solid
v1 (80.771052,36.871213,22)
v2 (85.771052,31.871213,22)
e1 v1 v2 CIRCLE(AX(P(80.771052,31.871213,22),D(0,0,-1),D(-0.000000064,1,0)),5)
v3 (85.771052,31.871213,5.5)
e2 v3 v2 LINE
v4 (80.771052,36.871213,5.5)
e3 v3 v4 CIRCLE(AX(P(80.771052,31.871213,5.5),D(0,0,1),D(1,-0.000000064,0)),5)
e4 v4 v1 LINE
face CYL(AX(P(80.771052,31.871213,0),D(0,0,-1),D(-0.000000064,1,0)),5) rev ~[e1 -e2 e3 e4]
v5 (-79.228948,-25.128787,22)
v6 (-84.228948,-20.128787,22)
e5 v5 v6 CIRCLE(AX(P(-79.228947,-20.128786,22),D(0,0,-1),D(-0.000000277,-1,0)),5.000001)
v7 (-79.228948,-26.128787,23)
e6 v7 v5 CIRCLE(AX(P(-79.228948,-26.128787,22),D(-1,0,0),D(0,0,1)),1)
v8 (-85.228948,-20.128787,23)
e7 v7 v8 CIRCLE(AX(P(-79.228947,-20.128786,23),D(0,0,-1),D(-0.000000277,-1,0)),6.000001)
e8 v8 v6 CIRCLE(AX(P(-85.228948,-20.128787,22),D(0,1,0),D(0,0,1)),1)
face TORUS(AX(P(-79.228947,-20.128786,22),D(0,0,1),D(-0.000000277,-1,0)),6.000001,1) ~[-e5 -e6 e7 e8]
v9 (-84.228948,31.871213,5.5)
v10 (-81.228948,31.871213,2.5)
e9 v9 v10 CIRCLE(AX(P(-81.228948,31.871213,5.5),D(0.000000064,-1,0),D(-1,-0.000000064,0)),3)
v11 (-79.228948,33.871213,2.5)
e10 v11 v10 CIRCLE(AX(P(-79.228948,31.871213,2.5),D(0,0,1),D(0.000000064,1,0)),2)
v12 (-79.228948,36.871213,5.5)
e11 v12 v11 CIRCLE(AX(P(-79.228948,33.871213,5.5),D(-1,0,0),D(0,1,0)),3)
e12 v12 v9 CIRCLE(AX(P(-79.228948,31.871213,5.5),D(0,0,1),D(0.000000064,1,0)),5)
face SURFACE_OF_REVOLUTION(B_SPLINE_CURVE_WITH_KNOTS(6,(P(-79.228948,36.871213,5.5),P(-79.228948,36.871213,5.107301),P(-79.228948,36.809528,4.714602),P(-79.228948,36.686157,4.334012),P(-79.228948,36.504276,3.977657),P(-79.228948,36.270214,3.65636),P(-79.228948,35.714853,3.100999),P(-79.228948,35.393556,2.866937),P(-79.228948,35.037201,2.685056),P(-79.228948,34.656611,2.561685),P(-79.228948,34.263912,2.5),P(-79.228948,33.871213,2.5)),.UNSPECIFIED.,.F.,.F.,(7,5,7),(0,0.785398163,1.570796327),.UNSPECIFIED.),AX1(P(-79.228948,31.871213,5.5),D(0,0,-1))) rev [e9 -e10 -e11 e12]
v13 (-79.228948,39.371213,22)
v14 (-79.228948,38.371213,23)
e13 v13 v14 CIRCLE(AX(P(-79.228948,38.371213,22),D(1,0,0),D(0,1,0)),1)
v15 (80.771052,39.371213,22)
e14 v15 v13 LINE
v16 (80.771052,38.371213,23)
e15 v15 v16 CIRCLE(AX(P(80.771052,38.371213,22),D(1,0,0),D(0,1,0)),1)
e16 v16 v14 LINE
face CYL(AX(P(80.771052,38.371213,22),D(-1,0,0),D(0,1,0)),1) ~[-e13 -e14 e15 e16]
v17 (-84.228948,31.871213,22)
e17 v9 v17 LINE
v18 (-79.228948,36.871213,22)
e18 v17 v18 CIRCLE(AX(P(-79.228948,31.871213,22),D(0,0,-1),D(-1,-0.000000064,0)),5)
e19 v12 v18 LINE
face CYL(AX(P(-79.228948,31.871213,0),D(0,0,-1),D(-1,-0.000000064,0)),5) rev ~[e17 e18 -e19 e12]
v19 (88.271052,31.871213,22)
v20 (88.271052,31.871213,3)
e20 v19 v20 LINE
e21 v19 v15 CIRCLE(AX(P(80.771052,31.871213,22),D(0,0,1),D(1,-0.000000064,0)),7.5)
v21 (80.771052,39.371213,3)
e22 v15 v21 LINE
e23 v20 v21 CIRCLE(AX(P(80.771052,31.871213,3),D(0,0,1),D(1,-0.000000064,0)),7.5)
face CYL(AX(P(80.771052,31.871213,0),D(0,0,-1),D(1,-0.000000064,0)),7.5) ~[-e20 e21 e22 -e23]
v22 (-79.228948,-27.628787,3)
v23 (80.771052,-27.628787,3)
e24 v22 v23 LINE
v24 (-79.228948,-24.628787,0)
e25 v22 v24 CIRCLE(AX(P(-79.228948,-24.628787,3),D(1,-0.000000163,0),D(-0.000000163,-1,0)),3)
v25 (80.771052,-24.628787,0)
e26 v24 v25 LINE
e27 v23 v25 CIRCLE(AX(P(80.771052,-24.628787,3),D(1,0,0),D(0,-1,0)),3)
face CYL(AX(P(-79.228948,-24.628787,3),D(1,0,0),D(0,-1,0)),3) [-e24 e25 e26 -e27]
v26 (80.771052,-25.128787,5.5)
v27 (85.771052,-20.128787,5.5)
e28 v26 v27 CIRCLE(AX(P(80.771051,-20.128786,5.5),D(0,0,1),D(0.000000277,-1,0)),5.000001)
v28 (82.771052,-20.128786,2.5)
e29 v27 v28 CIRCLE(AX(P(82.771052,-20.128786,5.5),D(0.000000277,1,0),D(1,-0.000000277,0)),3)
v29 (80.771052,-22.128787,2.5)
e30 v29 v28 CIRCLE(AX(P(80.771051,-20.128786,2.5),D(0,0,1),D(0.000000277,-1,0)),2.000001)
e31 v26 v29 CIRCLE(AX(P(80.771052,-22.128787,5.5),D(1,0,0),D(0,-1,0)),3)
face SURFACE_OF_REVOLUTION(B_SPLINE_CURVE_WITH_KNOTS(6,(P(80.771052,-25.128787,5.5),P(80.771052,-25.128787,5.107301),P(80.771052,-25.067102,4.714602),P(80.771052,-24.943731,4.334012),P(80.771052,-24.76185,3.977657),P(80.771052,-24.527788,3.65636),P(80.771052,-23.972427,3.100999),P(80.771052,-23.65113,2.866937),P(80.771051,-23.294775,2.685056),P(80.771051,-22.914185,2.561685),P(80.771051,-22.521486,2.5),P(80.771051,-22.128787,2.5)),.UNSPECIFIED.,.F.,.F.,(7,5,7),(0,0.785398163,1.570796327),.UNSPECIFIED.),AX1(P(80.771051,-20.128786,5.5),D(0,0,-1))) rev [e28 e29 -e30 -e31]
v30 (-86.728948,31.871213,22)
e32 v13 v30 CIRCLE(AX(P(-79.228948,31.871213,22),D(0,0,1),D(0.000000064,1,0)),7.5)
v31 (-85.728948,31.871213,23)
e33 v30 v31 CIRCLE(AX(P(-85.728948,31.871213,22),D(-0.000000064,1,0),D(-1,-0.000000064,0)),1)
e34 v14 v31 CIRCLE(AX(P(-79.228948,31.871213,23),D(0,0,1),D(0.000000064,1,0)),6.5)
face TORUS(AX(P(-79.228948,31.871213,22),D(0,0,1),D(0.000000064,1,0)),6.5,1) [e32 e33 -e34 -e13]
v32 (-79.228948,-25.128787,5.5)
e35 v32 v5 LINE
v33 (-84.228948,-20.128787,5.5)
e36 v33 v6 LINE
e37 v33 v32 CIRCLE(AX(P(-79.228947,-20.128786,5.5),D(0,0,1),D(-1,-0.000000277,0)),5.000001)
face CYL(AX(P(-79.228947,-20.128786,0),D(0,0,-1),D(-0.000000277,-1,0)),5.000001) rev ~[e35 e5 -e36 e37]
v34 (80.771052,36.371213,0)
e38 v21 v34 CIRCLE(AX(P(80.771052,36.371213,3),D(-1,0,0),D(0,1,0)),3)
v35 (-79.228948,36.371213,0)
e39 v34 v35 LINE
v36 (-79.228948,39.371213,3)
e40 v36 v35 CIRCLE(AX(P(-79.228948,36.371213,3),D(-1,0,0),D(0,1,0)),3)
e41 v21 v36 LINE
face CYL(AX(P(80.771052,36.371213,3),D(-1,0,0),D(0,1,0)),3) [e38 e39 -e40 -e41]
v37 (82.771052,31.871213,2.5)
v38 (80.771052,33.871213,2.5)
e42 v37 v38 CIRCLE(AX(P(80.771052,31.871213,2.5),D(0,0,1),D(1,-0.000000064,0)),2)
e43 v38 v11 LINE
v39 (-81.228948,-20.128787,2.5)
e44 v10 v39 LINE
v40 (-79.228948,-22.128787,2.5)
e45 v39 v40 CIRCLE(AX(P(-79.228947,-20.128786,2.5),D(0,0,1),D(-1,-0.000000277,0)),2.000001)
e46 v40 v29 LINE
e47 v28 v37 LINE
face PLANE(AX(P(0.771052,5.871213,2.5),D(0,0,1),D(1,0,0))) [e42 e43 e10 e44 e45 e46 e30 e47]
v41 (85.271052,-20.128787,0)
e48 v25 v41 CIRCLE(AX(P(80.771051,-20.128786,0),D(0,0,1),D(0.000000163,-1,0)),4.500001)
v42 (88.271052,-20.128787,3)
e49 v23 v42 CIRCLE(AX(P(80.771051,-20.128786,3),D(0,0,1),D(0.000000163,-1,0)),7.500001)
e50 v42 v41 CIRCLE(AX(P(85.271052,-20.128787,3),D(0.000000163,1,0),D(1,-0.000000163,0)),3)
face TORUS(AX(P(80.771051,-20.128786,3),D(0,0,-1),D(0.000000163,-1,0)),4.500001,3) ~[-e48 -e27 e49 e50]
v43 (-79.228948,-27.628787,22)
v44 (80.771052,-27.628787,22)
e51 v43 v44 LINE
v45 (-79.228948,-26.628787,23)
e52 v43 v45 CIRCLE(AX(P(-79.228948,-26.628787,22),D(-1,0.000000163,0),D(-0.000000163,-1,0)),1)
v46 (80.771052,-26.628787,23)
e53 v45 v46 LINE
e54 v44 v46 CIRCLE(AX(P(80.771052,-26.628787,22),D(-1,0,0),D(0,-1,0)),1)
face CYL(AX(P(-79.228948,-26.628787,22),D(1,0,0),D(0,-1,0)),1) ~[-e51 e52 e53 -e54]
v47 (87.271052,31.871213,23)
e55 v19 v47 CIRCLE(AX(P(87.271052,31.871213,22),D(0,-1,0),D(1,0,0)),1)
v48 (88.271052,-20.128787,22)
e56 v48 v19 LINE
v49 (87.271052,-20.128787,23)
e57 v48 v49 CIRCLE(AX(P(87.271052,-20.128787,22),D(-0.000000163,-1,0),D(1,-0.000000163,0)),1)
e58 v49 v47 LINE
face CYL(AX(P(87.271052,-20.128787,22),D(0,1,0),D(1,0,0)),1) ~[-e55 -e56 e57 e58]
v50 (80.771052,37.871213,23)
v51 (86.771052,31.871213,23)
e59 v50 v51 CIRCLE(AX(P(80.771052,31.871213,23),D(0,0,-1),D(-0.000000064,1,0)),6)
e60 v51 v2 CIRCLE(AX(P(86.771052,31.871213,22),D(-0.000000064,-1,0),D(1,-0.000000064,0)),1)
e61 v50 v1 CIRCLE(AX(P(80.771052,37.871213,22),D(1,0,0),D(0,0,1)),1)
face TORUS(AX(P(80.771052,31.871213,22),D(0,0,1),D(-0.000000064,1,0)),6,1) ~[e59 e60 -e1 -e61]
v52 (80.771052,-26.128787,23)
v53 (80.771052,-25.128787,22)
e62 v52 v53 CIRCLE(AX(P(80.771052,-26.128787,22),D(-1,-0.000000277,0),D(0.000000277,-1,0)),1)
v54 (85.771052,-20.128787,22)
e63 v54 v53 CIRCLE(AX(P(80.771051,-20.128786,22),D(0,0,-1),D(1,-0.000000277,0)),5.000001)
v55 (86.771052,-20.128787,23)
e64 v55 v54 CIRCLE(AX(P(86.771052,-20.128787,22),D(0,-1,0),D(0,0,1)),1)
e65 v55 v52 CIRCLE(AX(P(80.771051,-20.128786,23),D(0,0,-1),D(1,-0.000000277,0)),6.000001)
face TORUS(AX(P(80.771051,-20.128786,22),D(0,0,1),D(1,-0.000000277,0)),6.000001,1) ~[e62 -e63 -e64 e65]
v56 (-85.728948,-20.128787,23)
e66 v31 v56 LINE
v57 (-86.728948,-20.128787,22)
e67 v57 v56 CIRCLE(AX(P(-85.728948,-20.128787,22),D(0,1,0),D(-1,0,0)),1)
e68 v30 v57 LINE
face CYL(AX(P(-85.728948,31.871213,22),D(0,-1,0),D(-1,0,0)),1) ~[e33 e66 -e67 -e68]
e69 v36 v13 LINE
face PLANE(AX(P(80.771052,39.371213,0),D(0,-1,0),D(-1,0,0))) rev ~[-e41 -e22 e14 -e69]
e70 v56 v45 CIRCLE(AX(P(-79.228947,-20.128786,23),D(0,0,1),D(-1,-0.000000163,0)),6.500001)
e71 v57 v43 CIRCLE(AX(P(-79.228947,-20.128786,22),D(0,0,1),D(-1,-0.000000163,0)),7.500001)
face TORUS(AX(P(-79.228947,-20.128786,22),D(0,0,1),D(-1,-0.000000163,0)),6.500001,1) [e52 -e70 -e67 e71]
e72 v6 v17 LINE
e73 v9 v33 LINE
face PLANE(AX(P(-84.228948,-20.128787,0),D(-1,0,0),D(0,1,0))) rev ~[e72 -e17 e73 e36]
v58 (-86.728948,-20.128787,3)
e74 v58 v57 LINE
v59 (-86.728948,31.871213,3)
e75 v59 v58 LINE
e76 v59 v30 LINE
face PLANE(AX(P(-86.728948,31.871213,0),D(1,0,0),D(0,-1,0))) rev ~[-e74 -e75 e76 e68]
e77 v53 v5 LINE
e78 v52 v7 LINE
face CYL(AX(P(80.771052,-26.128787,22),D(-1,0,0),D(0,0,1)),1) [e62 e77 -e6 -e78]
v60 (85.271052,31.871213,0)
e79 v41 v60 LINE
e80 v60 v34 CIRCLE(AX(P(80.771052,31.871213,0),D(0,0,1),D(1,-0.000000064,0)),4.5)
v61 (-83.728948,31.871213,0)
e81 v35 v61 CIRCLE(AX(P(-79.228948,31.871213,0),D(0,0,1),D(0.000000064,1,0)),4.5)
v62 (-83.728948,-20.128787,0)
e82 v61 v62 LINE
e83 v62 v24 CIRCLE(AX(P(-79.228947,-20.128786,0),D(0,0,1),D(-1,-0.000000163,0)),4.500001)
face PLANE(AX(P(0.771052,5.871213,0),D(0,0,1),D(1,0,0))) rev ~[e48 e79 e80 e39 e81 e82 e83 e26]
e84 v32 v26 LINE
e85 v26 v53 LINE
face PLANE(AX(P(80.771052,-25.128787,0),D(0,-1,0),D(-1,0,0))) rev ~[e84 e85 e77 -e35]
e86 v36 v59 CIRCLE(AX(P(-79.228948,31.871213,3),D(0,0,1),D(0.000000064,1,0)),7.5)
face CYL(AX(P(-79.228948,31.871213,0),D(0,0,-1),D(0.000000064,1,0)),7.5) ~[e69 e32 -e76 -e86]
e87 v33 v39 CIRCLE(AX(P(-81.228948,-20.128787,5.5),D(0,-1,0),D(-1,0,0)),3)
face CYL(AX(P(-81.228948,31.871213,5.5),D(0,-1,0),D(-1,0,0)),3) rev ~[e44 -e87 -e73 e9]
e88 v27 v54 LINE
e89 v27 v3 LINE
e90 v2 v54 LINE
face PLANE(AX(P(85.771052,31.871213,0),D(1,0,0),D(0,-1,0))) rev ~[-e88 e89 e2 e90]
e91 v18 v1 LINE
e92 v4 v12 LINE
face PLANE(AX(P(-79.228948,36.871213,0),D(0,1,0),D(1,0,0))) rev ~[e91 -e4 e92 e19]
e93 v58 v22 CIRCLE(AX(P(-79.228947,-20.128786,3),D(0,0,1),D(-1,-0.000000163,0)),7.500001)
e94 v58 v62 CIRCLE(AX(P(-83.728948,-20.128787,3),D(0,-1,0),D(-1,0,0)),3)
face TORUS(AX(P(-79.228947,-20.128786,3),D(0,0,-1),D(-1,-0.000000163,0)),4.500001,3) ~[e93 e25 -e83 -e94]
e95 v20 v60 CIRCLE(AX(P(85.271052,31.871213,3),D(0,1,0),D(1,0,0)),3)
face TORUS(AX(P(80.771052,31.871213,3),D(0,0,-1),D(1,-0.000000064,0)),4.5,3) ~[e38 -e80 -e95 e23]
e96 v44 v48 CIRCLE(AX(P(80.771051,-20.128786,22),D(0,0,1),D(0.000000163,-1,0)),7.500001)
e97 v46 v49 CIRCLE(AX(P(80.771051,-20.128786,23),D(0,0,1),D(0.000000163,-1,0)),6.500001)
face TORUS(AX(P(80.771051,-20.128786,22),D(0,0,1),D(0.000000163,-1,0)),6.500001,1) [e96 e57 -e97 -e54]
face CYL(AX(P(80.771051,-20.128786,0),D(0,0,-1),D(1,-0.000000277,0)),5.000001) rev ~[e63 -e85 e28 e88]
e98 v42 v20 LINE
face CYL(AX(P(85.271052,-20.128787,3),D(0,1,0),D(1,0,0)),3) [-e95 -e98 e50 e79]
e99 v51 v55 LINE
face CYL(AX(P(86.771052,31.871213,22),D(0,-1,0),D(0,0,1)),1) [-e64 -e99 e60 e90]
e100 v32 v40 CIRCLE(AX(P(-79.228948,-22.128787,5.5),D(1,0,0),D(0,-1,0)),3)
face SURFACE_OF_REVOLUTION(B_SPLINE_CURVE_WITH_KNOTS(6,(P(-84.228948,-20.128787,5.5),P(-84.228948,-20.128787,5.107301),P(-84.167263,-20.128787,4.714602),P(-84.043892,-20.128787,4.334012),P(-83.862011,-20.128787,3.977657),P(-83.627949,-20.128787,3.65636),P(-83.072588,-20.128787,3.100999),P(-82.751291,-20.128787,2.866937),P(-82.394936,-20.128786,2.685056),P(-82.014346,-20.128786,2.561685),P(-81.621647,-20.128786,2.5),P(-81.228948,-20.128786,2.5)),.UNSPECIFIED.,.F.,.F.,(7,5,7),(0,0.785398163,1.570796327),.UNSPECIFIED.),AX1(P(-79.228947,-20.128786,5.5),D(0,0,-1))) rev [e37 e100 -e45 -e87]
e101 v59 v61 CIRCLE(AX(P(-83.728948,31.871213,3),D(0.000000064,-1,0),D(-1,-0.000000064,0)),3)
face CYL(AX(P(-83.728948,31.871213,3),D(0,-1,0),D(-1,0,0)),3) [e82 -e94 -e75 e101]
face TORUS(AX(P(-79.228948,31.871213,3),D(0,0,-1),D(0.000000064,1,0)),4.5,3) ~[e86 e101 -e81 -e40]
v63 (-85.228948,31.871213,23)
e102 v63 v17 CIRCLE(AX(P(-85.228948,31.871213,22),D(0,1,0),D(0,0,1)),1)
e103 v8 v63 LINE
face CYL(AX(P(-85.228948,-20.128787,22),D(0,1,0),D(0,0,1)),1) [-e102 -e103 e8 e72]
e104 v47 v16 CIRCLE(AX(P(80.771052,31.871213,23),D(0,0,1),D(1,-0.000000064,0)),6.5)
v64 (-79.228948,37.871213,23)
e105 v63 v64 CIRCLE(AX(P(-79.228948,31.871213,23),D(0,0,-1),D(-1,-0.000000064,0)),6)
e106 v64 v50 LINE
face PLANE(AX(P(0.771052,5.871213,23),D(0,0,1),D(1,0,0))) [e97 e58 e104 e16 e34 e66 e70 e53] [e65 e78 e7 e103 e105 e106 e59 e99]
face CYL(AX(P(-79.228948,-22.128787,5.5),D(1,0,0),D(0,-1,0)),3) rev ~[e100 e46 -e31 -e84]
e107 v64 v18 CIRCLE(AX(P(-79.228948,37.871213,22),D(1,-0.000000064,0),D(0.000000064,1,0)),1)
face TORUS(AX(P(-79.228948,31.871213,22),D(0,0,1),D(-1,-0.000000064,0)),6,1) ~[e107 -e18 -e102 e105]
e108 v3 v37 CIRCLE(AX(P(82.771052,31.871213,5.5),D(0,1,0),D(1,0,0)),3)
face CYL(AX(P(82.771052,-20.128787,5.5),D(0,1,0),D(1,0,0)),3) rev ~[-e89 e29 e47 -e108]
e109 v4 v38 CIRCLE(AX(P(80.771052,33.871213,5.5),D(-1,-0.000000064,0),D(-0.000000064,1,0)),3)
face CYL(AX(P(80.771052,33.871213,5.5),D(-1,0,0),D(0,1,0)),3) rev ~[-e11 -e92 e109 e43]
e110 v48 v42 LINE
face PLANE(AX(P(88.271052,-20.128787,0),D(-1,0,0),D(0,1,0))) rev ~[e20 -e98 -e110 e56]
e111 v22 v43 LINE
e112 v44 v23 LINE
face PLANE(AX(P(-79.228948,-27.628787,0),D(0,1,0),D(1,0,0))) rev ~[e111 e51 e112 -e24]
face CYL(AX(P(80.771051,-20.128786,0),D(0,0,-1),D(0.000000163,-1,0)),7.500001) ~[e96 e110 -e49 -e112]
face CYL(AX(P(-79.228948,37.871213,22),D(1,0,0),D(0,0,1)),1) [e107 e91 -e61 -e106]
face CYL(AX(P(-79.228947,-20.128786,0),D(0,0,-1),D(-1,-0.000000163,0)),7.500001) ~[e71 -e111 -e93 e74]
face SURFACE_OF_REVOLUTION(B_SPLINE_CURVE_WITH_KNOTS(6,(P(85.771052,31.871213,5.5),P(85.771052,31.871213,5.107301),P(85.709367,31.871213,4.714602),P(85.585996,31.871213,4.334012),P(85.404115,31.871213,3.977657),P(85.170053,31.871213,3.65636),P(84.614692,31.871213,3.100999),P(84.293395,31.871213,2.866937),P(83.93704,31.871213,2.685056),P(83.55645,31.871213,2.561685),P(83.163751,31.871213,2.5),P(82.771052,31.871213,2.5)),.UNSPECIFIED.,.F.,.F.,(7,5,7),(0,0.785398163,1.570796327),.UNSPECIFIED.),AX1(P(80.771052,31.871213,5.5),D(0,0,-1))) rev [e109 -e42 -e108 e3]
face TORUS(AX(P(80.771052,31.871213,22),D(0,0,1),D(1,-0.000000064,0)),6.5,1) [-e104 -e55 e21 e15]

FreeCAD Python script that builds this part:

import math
import FreeCAD as App
import Part
import Sketcher

V = App.Vector
Q = App.Units.Quantity


def edges_at(feature, points):
    """Names of the edges that pass closest to the given points."""
    edges = feature.Shape.Edges
    near = lambda p: min(range(len(edges)), key=lambda i: edges[i].distToShape(Part.Vertex(*p))[0])
    return sorted({f"Edge{near(p) + 1}" for p in points})

doc = App.newDocument("Part")
body = doc.addObject("PartDesign::Body", "Body")

sketch1 = doc.addObject("Sketcher::SketchObject", "Sketch")
body.addObject(sketch1)
sketch1.AttachmentSupport = (doc.XY_Plane, [""])
sketch1.MapMode = "FlatFace"
sketch1.addGeometry([
    Part.LineSegment(V(80.771052, 39.371213, 0), V(-79.228948, 39.371213, 0)),
    Part.ArcOfCircle(Part.Circle(V(-79.228948, 31.871213, 0), V(0, 0, 1), 7.5), math.radians(89.999996), math.radians(180.000004)),
    Part.LineSegment(V(-86.728948, 31.871213, 0), V(-86.728948, -20.128787, 0)),
    Part.ArcOfCircle(Part.Circle(V(-79.228947, -20.128786, 0), V(0, 0, 1), 7.500001), math.radians(-179.999991), math.radians(-90.000009)),
    Part.LineSegment(V(-79.228948, -27.628787, 0), V(80.771052, -27.628787, 0)),
    Part.ArcOfCircle(Part.Circle(V(80.771051, -20.128786, 0), V(0, 0, 1), 7.500001), math.radians(-89.999991), math.radians(-0.000009)),
    Part.LineSegment(V(88.271052, -20.128787, 0), V(88.271052, 31.871213, 0)),
    Part.ArcOfCircle(Part.Circle(V(80.771052, 31.871213, 0), V(0, 0, 1), 7.5), math.radians(-0.000004), math.radians(90.000004)),
], False)
sketch1.addConstraint([
    Sketcher.Constraint("Tangent", 0, 2, 1, 1),
    Sketcher.Constraint("Tangent", 1, 2, 2, 1),
    Sketcher.Constraint("Tangent", 2, 2, 3, 1),
    Sketcher.Constraint("Tangent", 3, 2, 4, 1),
    Sketcher.Constraint("Tangent", 4, 2, 5, 1),
    Sketcher.Constraint("Tangent", 5, 2, 6, 1),
    Sketcher.Constraint("Tangent", 6, 2, 7, 1),
    Sketcher.Constraint("Tangent", 7, 2, 0, 1),
    Sketcher.Constraint("Horizontal", 0),
    Sketcher.Constraint("Vertical", 2),
    Sketcher.Constraint("Horizontal", 4),
    Sketcher.Constraint("Vertical", 6),
    Sketcher.Constraint("Equal", 1, 3),
    Sketcher.Constraint("Equal", 3, 5),
    Sketcher.Constraint("Equal", 5, 7),
    Sketcher.Constraint("Radius", 1, Q("7.5 mm")),
    Sketcher.Constraint("DistanceX", 0, 2, 0, 1, Q("160 mm")),
    Sketcher.Constraint("DistanceY", 2, 2, 2, 1, Q("52 mm")),
    Sketcher.Constraint("DistanceX", 1, 3, -1, 1, Q("79.228948 mm")),
    Sketcher.Constraint("DistanceY", -1, 1, 1, 3, Q("31.871213 mm")),
])
pad1 = doc.addObject("PartDesign::Pad", "Pad")
body.addObject(pad1)
pad1.Profile = sketch1
pad1.Length = 2.5

sketch2 = doc.addObject("Sketcher::SketchObject", "Sketch001")
body.addObject(sketch2)
sketch2.AttachmentSupport = (doc.XY_Plane, [""])
sketch2.MapMode = "FlatFace"
sketch2.addGeometry([
    Part.LineSegment(V(80.771052, 39.371213, 0), V(-79.228948, 39.371213, 0)),
    Part.ArcOfCircle(Part.Circle(V(-79.228948, 31.871213, 0), V(0, 0, 1), 7.5), math.radians(89.999996), math.radians(180.000004)),
    Part.LineSegment(V(-86.728948, 31.871213, 0), V(-86.728948, -20.128787, 0)),
    Part.ArcOfCircle(Part.Circle(V(-79.228947, -20.128786, 0), V(0, 0, 1), 7.500001), math.radians(-179.999991), math.radians(-90.000009)),
    Part.LineSegment(V(-79.228948, -27.628787, 0), V(80.771052, -27.628787, 0)),
    Part.ArcOfCircle(Part.Circle(V(80.771051, -20.128786, 0), V(0, 0, 1), 7.500001), math.radians(-89.999991), math.radians(-0.000009)),
    Part.LineSegment(V(88.271052, -20.128787, 0), V(88.271052, 31.871213, 0)),
    Part.ArcOfCircle(Part.Circle(V(80.771052, 31.871213, 0), V(0, 0, 1), 7.5), math.radians(-0.000004), math.radians(90.000004)),
    Part.LineSegment(V(-84.228948, -20.128787, 0), V(-84.228948, 31.871213, 0)),
    Part.ArcOfCircle(Part.Circle(V(-79.228948, 31.871213, 0), V(0, 0, 1), 5), math.radians(89.999996), math.radians(180.000004)),
    Part.LineSegment(V(-79.228948, 36.871213, 0), V(80.771052, 36.871213, 0)),
    Part.ArcOfCircle(Part.Circle(V(80.771052, 31.871213, 0), V(0, 0, 1), 5), math.radians(-0.000004), math.radians(90.000004)),
    Part.LineSegment(V(85.771052, 31.871213, 0), V(85.771052, -20.128787, 0)),
    Part.ArcOfCircle(Part.Circle(V(80.771051, -20.128786, 0), V(0, 0, 1), 5.000001), math.radians(-89.999984), math.radians(-0.000016)),
    Part.LineSegment(V(80.771052, -25.128787, 0), V(-79.228948, -25.128787, 0)),
    Part.ArcOfCircle(Part.Circle(V(-79.228947, -20.128786, 0), V(0, 0, 1), 5.000001), math.radians(-179.999984), math.radians(-90.000016)),
], False)
sketch2.addConstraint([
    Sketcher.Constraint("Tangent", 0, 2, 1, 1),
    Sketcher.Constraint("Tangent", 1, 2, 2, 1),
    Sketcher.Constraint("Tangent", 2, 2, 3, 1),
    Sketcher.Constraint("Tangent", 3, 2, 4, 1),
    Sketcher.Constraint("Tangent", 4, 2, 5, 1),
    Sketcher.Constraint("Tangent", 5, 2, 6, 1),
    Sketcher.Constraint("Tangent", 6, 2, 7, 1),
    Sketcher.Constraint("Tangent", 7, 2, 0, 1),
    Sketcher.Constraint("Tangent", 8, 2, 9, 2),
    Sketcher.Constraint("Tangent", 9, 1, 10, 1),
    Sketcher.Constraint("Tangent", 10, 2, 11, 2),
    Sketcher.Constraint("Tangent", 11, 1, 12, 1),
    Sketcher.Constraint("Tangent", 12, 2, 13, 2),
    Sketcher.Constraint("Tangent", 13, 1, 14, 1),
    Sketcher.Constraint("Tangent", 14, 2, 15, 2),
    Sketcher.Constraint("Tangent", 15, 1, 8, 1),
    Sketcher.Constraint("Horizontal", 0),
    Sketcher.Constraint("Vertical", 2),
    Sketcher.Constraint("Horizontal", 4),
    Sketcher.Constraint("Vertical", 6),
    Sketcher.Constraint("Vertical", 8),
    Sketcher.Constraint("Horizontal", 10),
    Sketcher.Constraint("Vertical", 12),
    Sketcher.Constraint("Horizontal", 14),
    Sketcher.Constraint("Coincident", 9, 3, 1, 3),
    Sketcher.Constraint("Coincident", 11, 3, 7, 3),
    Sketcher.Constraint("Coincident", 13, 3, 5, 3),
    Sketcher.Constraint("Equal", 1, 3),
    Sketcher.Constraint("Equal", 3, 5),
    Sketcher.Constraint("Equal", 5, 7),
    Sketcher.Constraint("Equal", 13, 15),
    Sketcher.Constraint("Radius", 9, Q("5 mm")),
    Sketcher.Constraint("Radius", 1, Q("7.5 mm")),
    Sketcher.Constraint("DistanceX", 0, 2, 0, 1, Q("160 mm")),
    Sketcher.Constraint("DistanceY", 2, 2, 2, 1, Q("52 mm")),
    Sketcher.Constraint("DistanceX", 1, 3, -1, 1, Q("79.228948 mm")),
    Sketcher.Constraint("DistanceY", -1, 1, 1, 3, Q("31.871213 mm")),
])
pad2 = doc.addObject("PartDesign::Pad", "Pad001")
body.addObject(pad2)
pad2.Profile = sketch2
pad2.Length = 23
doc.recompute()

fillet = doc.addObject("PartDesign::Fillet", "Fillet")
body.addObject(fillet)
fillet.Base = (pad2, edges_at(pad2, [
    (0.771, 39.371, 0),
    (-84.532, 37.175, 0),
    (-86.729, 5.871, 0),
    (-84.532, -25.432, 0),
    (0.771, -27.629, 0),
    (86.074, -25.432, 0),
    (88.271, 5.871, 0),
    (86.074, 37.175, 0),
]))
fillet.Radius = 3
doc.recompute()

fillet2 = doc.addObject("PartDesign::Fillet", "Fillet001")
body.addObject(fillet2)
fillet2.Base = (fillet, edges_at(fillet, [
    (0.771, 39.371, 23),
    (-84.532, 37.175, 23),
    (-86.729, 5.871, 23),
    (-84.532, -25.432, 23),
    (0.771, -27.629, 23),
    (86.074, -25.432, 23),
    (88.271, 5.871, 23),
    (86.074, 37.175, 23),
    (-84.229, 5.871, 23),
    (-82.764, 35.407, 23),
    (0.771, 36.871, 23),
    (84.307, 35.407, 23),
    (85.771, 5.871, 23),
    (84.307, -23.664, 23),
    (0.771, -25.129, 23),
    (-82.764, -23.664, 23),
]))
fillet2.Radius = 1
doc.recompute()

fillet3 = doc.addObject("PartDesign::Fillet", "Fillet002")
body.addObject(fillet3)
fillet3.Base = (fillet2, edges_at(fillet2, [
    (0.771, -25.129, 2.5),
    (84.307, -23.664, 2.5),
    (0.771, 36.871, 2.5),
    (84.307, 35.407, 2.5),
    (-82.764, -23.664, 2.5),
    (-84.229, 5.871, 2.5),
    (-82.764, 35.407, 2.5),
    (85.771, 5.871, 2.5),
]))
fillet3.Radius = 3

doc.recompute()
